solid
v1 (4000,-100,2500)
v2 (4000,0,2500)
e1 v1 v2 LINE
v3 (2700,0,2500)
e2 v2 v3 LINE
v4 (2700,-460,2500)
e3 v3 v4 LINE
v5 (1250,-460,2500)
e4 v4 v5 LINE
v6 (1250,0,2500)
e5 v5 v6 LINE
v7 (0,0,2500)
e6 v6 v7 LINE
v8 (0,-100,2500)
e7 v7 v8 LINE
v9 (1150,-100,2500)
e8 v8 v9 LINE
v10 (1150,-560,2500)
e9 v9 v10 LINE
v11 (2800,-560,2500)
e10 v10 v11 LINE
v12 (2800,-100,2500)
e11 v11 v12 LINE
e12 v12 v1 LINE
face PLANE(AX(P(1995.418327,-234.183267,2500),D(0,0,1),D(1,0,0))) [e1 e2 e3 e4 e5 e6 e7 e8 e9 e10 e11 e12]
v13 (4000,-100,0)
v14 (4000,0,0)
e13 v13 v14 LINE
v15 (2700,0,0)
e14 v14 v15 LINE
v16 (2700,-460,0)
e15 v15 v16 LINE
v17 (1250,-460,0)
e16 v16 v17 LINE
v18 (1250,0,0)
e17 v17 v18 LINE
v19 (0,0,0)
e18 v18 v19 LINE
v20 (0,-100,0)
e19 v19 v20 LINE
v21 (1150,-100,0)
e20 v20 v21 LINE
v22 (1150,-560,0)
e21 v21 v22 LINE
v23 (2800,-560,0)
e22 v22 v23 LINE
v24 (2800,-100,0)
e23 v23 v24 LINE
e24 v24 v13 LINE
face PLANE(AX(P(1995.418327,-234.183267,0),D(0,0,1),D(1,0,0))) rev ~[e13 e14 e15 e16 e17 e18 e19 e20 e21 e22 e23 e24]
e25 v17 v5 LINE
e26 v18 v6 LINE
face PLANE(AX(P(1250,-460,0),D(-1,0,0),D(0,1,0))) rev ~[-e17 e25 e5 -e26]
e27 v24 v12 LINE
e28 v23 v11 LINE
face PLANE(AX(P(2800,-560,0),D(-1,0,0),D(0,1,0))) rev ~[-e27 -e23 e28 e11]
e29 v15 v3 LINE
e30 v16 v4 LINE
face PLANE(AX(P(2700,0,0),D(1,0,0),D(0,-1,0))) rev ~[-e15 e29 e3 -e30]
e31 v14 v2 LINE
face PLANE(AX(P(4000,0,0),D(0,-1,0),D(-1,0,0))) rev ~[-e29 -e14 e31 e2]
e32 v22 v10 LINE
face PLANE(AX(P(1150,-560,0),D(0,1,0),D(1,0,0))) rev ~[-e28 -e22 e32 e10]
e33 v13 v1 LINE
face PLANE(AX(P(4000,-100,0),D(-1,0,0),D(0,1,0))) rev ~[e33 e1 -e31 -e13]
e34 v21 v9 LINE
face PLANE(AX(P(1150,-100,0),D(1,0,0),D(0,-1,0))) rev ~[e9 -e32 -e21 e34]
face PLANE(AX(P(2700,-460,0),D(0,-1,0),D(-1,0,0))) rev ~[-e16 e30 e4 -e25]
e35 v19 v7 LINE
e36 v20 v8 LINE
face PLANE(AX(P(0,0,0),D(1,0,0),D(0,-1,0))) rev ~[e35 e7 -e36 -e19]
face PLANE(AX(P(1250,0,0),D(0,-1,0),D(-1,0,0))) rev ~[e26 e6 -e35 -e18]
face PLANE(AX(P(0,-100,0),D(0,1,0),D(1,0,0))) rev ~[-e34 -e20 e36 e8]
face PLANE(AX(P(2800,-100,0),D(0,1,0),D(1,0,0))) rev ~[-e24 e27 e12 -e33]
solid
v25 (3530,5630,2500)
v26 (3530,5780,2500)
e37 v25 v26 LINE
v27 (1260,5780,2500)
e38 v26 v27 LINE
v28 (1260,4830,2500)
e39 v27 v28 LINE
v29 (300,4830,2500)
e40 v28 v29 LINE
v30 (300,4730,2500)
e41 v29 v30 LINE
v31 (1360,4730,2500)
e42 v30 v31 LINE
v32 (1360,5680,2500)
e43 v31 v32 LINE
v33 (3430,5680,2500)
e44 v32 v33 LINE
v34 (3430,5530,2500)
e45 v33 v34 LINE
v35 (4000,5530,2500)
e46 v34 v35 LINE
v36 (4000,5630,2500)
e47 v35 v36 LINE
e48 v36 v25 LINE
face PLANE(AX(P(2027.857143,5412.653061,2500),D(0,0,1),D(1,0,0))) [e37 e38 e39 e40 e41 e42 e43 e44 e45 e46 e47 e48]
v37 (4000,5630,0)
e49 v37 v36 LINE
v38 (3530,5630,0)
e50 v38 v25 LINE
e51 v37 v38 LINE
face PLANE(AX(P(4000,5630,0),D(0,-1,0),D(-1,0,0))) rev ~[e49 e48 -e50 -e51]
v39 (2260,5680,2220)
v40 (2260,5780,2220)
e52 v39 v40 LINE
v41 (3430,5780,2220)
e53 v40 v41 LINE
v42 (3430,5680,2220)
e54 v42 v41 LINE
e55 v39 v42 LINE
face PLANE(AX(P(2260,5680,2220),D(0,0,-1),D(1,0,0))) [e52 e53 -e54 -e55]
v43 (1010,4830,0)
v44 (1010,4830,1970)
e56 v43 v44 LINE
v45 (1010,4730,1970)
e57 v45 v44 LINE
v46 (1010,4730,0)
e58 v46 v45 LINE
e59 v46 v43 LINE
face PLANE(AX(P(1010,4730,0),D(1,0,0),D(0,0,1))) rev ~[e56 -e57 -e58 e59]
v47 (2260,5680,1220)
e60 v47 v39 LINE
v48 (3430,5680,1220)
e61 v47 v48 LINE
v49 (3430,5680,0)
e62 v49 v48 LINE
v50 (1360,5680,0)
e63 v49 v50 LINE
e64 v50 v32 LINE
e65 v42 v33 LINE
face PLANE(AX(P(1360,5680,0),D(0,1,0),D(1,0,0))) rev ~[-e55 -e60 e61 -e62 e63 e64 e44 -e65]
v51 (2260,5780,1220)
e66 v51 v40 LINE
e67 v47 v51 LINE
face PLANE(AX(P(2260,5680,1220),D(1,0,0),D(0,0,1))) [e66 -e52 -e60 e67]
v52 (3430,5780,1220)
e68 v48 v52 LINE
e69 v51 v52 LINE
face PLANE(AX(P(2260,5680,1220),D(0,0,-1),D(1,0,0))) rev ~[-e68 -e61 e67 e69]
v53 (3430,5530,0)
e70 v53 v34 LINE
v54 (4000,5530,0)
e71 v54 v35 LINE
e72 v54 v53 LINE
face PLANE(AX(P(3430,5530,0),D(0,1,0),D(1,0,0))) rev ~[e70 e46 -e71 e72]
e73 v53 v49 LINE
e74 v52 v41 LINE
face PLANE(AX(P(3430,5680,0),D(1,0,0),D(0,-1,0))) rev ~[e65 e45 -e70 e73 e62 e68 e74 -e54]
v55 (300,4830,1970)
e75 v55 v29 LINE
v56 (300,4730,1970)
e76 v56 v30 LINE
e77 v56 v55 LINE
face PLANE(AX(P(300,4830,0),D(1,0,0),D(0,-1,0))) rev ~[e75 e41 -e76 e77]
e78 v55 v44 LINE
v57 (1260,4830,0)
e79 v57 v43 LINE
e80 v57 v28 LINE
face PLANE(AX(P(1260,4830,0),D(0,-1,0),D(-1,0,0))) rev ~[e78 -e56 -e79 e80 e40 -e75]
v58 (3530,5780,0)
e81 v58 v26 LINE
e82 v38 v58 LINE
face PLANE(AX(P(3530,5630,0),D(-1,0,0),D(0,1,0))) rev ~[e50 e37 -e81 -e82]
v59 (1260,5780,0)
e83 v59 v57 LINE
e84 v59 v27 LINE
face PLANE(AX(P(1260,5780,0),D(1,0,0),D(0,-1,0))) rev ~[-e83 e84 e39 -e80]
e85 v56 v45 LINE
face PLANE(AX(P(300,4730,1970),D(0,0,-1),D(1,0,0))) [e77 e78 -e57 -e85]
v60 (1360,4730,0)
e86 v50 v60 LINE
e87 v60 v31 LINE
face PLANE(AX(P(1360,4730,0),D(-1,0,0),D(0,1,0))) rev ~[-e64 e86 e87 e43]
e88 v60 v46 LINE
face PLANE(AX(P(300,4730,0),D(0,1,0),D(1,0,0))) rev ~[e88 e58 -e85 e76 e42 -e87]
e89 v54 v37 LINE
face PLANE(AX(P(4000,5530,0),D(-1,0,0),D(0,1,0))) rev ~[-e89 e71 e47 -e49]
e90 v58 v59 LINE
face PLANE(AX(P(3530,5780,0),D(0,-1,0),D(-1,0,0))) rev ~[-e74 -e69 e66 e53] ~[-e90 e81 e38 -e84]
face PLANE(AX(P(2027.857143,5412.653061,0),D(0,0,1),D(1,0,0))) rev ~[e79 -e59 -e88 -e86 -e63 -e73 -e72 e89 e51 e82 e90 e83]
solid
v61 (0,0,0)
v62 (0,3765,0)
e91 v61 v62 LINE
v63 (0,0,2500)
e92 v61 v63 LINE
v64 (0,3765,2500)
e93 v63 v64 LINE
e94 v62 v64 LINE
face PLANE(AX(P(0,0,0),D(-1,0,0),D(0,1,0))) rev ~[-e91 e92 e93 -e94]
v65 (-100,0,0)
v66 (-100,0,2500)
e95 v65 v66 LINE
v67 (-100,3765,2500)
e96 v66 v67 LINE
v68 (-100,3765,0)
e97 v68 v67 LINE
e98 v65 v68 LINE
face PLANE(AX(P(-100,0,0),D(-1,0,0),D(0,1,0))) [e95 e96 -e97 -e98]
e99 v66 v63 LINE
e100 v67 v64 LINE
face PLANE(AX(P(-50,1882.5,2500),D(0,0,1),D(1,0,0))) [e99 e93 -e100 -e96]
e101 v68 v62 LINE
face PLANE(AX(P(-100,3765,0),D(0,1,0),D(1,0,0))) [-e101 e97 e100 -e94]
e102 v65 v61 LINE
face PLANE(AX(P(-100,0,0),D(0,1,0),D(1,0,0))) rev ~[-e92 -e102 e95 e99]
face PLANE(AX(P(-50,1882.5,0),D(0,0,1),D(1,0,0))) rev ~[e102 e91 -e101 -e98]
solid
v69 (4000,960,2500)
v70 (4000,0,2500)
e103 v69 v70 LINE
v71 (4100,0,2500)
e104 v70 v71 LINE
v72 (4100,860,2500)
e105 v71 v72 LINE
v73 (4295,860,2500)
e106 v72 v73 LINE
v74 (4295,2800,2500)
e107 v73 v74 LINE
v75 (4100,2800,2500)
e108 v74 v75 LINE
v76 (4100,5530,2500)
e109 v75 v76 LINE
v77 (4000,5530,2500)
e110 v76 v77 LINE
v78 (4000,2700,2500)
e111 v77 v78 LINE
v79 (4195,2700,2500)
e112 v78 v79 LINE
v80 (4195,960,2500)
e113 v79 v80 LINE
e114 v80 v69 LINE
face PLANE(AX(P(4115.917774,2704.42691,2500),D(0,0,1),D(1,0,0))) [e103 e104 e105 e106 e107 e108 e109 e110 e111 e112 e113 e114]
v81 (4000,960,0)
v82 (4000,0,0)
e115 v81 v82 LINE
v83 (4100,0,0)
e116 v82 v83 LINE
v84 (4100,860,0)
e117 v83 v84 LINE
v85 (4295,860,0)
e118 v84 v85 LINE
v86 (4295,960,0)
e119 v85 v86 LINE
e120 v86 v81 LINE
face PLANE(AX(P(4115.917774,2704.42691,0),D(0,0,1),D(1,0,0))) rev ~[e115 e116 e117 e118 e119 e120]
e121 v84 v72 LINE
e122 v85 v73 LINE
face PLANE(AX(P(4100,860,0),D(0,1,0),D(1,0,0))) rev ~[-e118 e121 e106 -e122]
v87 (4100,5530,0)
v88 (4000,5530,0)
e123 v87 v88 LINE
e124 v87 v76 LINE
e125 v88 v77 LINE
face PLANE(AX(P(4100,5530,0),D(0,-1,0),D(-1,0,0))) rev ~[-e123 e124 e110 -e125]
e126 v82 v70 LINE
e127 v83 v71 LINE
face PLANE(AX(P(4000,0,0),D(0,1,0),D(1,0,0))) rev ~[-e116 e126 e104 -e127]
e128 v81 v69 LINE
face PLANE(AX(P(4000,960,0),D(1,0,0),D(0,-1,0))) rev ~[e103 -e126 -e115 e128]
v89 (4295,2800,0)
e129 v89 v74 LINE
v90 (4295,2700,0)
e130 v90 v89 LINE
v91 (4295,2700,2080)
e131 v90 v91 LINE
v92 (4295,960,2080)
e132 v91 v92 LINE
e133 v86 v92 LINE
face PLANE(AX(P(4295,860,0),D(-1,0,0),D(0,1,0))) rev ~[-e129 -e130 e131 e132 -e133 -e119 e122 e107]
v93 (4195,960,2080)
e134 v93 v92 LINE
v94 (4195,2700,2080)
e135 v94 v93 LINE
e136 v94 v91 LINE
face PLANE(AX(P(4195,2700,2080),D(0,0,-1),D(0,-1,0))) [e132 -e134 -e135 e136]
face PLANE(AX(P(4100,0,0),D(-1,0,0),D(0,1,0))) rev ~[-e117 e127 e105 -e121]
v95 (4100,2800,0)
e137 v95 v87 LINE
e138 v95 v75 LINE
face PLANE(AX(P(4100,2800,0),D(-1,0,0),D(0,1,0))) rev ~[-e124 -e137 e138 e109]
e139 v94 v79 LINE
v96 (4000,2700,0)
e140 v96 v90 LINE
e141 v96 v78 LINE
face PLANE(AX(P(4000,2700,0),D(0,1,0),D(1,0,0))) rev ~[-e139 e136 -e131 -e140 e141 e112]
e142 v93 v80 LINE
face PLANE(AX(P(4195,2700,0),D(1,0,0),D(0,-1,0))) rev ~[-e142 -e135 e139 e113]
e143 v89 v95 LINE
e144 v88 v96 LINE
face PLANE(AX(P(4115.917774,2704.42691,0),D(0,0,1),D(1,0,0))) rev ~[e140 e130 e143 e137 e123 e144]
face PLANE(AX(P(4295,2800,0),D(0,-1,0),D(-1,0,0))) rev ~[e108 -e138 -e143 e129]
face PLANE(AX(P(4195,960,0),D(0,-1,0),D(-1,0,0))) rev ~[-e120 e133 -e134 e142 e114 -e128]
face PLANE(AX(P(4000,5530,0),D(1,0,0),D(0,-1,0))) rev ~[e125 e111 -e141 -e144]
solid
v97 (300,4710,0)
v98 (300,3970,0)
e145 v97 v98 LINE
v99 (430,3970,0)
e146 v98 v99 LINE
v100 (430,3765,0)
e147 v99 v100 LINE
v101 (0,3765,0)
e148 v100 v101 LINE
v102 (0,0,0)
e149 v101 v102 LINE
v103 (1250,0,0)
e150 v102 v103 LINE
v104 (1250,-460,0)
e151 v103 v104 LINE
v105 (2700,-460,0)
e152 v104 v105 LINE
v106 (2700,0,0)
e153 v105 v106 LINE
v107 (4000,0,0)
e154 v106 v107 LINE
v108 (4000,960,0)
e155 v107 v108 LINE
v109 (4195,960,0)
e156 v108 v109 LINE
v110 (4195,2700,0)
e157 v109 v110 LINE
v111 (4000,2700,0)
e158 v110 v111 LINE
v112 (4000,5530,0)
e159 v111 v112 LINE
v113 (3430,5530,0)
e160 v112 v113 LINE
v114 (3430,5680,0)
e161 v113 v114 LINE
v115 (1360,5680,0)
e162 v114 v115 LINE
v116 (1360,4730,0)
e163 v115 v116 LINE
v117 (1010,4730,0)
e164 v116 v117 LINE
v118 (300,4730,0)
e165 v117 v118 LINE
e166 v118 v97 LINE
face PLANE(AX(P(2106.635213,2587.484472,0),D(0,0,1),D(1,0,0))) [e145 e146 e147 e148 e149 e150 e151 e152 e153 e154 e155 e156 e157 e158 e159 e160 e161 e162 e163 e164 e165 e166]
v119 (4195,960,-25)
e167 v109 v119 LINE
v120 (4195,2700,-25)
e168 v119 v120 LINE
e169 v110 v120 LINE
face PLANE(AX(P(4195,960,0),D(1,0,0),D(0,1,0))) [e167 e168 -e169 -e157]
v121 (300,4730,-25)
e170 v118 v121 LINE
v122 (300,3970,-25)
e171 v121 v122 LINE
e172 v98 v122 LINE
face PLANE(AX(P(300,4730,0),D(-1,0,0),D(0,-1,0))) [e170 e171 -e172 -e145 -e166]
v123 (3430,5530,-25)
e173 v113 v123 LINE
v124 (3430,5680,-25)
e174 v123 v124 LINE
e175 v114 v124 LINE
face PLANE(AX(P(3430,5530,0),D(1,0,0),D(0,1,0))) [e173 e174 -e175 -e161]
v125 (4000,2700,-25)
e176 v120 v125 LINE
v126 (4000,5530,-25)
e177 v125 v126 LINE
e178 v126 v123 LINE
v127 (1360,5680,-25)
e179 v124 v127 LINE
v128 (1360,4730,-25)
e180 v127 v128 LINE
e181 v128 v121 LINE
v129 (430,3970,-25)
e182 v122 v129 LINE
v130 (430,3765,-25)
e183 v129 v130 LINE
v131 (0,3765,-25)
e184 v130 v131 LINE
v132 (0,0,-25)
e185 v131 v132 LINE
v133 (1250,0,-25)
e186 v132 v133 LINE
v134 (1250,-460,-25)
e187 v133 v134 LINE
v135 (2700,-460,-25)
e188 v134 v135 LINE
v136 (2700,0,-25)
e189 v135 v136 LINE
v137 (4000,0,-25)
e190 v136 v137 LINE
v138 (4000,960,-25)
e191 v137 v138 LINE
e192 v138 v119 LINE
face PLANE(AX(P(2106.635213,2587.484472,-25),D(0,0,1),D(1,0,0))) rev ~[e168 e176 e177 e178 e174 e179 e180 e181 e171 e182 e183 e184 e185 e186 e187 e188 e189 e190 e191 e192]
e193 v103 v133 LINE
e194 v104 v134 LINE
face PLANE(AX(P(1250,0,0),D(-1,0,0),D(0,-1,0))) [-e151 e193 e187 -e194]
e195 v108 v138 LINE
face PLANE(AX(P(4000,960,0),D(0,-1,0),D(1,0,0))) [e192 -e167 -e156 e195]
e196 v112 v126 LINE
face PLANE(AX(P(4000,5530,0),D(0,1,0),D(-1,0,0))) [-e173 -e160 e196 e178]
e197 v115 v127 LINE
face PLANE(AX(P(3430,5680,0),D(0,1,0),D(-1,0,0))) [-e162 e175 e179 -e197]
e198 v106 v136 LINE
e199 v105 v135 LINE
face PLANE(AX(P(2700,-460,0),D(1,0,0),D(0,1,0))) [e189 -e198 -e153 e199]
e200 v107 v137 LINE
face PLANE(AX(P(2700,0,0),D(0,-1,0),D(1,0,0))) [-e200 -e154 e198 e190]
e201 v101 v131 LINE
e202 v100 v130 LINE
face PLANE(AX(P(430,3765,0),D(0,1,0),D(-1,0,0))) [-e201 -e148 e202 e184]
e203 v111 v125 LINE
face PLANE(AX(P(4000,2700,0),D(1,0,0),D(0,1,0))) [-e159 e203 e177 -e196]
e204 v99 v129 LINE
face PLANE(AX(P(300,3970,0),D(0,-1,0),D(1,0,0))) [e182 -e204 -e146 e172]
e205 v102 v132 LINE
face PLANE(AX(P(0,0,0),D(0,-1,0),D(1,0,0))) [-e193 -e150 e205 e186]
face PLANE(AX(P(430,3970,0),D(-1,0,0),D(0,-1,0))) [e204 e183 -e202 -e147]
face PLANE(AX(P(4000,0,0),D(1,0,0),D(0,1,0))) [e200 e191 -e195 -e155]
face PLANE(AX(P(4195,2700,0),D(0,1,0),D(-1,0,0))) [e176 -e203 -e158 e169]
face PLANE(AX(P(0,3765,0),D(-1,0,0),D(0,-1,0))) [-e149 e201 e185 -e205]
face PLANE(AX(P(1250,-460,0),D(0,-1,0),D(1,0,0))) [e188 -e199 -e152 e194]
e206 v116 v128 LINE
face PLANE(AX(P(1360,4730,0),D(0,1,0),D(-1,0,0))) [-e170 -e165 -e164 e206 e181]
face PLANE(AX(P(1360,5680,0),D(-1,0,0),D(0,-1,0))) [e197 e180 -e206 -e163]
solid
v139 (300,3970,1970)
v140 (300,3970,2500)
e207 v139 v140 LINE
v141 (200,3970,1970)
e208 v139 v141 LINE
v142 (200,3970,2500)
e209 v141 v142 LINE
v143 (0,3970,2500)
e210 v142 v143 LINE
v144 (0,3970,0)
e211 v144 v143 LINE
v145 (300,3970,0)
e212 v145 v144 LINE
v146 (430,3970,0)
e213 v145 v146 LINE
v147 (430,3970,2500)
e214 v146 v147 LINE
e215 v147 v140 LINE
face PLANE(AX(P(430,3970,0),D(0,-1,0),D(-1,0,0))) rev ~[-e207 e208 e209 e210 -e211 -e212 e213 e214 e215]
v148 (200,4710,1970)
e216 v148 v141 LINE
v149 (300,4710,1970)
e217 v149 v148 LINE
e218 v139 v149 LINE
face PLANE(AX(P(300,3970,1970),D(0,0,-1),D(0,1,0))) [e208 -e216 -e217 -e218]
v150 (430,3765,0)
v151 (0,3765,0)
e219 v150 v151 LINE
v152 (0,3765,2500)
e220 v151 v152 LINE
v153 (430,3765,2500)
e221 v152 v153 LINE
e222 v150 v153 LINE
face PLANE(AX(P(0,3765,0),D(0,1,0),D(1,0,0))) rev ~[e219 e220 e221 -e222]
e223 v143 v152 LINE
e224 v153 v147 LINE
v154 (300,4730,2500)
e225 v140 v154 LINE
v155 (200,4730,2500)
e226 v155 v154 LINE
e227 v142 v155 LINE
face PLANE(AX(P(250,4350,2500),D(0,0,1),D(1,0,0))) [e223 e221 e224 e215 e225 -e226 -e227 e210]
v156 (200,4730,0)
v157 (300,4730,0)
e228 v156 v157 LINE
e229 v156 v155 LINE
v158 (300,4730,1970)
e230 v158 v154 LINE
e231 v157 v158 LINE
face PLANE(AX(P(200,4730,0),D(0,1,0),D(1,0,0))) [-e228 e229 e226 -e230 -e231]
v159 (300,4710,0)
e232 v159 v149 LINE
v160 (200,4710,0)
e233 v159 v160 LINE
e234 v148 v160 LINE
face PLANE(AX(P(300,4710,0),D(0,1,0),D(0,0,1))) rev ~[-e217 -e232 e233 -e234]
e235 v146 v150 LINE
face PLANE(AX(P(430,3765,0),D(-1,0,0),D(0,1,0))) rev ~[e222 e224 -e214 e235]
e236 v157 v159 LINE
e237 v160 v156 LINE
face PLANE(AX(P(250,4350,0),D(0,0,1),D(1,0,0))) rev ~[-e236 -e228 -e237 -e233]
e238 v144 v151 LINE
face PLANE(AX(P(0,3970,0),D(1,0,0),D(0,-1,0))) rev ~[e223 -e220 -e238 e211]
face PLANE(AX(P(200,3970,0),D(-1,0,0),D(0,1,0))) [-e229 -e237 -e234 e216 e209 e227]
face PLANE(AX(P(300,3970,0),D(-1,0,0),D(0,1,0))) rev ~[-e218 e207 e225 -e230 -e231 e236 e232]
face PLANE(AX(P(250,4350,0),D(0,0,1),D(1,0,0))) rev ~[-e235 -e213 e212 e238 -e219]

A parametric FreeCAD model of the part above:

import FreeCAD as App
import Part
import Sketcher

V = App.Vector

doc = App.newDocument("Part")
params = doc.addObject("Spreadsheet::Sheet", "Params")
for row, (alias, value) in enumerate([
    ("sketch1_width", "1250 mm"),
    ("sketch1_width2", "1450 mm"),
    ("sketch1_width3", "1300 mm"),
    ("sketch1_width4", "195 mm"),
    ("sketch1_width5", "570 mm"),
    ("pad1_length", "25 mm"),
    ("sketch2_width", "100 mm"),
    ("sketch2_height", "3765 mm"),
    ("pad2_length", "2500 mm"),
    ("sketch3_width", "1250 mm"),
    ("sketch3_width2", "1150 mm"),
    ("sketch3_width3", "1650 mm"),
    ("sketch3_width4", "1200 mm"),
    ("sketch3_width5", "1300 mm"),
    ("pad3_length", "2500 mm"),
    ("sketch4_width", "100 mm"),
    ("sketch4_width2", "195 mm"),
    ("sketch4_height", "960 mm"),
    ("sketch4_height2", "860 mm"),
    ("sketch4_height3", "1940 mm"),
    ("pad4_length", "2500 mm"),
    ("sketch5_width", "1740 mm"),
    ("sketch5_height", "2080 mm"),
    ("sketch6_width", "430 mm"),
    ("sketch6_height", "205 mm"),
    ("pad5_length", "2500 mm"),
    ("sketch7_width", "570 mm"),
    ("sketch7_width2", "470 mm"),
    ("sketch7_width3", "2270 mm"),
    ("sketch7_width4", "960 mm"),
    ("sketch7_width5", "1060 mm"),
    ("pad6_length", "2500 mm"),
    ("sketch8_width", "100 mm"),
    ("sketch8_height", "760 mm"),
    ("pad7_length", "2500 mm"),
    ("sketch9_width", "1170 mm"),
    ("sketch9_height", "1000 mm"),
    ("sketch10_width", "740 mm"),
    ("sketch10_height", "1970 mm"),
    ("sketch11_width", "710 mm"),
    ("sketch11_height", "1970 mm"),
], start=1):
    params.set(f"A{row}", alias)
    params.set(f"B{row}", "=" + value)
    params.setAlias(f"B{row}", alias)

body = doc.addObject("PartDesign::Body", "Body")

sketch1 = body.newObject("Sketcher::SketchObject", "Sketch")
sketch1.AttachmentSupport = (doc.getObject("XY_Plane"), [""])
sketch1.MapMode = "FlatFace"
sketch1.addGeometry([
    Part.LineSegment(V(0, 3765, 0), V(0, 0, 0)),
    Part.LineSegment(V(0, 0, 0), V(1250, 0, 0)),
    Part.LineSegment(V(1250, 0, 0), V(1250, -460, 0)),
    Part.LineSegment(V(1250, -460, 0), V(2700, -460, 0)),
    Part.LineSegment(V(2700, -460, 0), V(2700, 0, 0)),
    Part.LineSegment(V(2700, 0, 0), V(4000, 0, 0)),
    Part.LineSegment(V(4000, 0, 0), V(4000, 960, 0)),
    Part.LineSegment(V(4000, 960, 0), V(4195, 960, 0)),
    Part.LineSegment(V(4195, 960, 0), V(4195, 2700, 0)),
    Part.LineSegment(V(4195, 2700, 0), V(4000, 2700, 0)),
    Part.LineSegment(V(4000, 2700, 0), V(4000, 5530, 0)),
    Part.LineSegment(V(4000, 5530, 0), V(3430, 5530, 0)),
    Part.LineSegment(V(3430, 5530, 0), V(3430, 5680, 0)),
    Part.LineSegment(V(3430, 5680, 0), V(1360, 5680, 0)),
    Part.LineSegment(V(1360, 5680, 0), V(1360, 4730, 0)),
    Part.LineSegment(V(1360, 4730, 0), V(300, 4730, 0)),
    Part.LineSegment(V(300, 4730, 0), V(300, 3970, 0)),
    Part.LineSegment(V(300, 3970, 0), V(430, 3970, 0)),
    Part.LineSegment(V(430, 3970, 0), V(430, 3765, 0)),
    Part.LineSegment(V(430, 3765, 0), V(0, 3765, 0)),
], False)
sketch1.addConstraint([
    Sketcher.Constraint("Coincident", 0, 2, 1, 1),
    Sketcher.Constraint("Coincident", 1, 2, 2, 1),
    Sketcher.Constraint("Coincident", 2, 2, 3, 1),
    Sketcher.Constraint("Coincident", 3, 2, 4, 1),
    Sketcher.Constraint("Coincident", 4, 2, 5, 1),
    Sketcher.Constraint("Coincident", 5, 2, 6, 1),
    Sketcher.Constraint("Coincident", 6, 2, 7, 1),
    Sketcher.Constraint("Coincident", 7, 2, 8, 1),
    Sketcher.Constraint("Coincident", 8, 2, 9, 1),
    Sketcher.Constraint("Coincident", 9, 2, 10, 1),
    Sketcher.Constraint("Coincident", 10, 2, 11, 1),
    Sketcher.Constraint("Coincident", 11, 2, 12, 1),
    Sketcher.Constraint("Coincident", 12, 2, 13, 1),
    Sketcher.Constraint("Coincident", 13, 2, 14, 1),
    Sketcher.Constraint("Coincident", 14, 2, 15, 1),
    Sketcher.Constraint("Coincident", 15, 2, 16, 1),
    Sketcher.Constraint("Coincident", 16, 2, 17, 1),
    Sketcher.Constraint("Coincident", 17, 2, 18, 1),
    Sketcher.Constraint("Coincident", 18, 2, 19, 1),
    Sketcher.Constraint("Coincident", 19, 2, 0, 1),
    Sketcher.Constraint("Vertical", 0),
    Sketcher.Constraint("Horizontal", 1),
    Sketcher.Constraint("Vertical", 2),
    Sketcher.Constraint("Horizontal", 3),
    Sketcher.Constraint("Vertical", 4),
    Sketcher.Constraint("Horizontal", 5),
    Sketcher.Constraint("Vertical", 6),
    Sketcher.Constraint("Horizontal", 7),
    Sketcher.Constraint("Vertical", 8),
    Sketcher.Constraint("Horizontal", 9),
    Sketcher.Constraint("Vertical", 10),
    Sketcher.Constraint("Horizontal", 11),
    Sketcher.Constraint("Vertical", 12),
    Sketcher.Constraint("Horizontal", 13),
    Sketcher.Constraint("Vertical", 14),
    Sketcher.Constraint("Horizontal", 15),
    Sketcher.Constraint("Vertical", 16),
    Sketcher.Constraint("Horizontal", 17),
    Sketcher.Constraint("Vertical", 18),
    Sketcher.Constraint("Horizontal", 19),
    Sketcher.Constraint("Coincident", 0, 2, -1, 1),
    Sketcher.Constraint("PointOnObject", 4, 2, -1),
    Sketcher.Constraint("Vertical", 6, 2, 9, 2),
    Sketcher.Constraint("DistanceX", 1, 1, 1, 2, 1250.0),
    Sketcher.Constraint("DistanceX", 3, 1, 3, 2, 1450.0),
    Sketcher.Constraint("DistanceX", 5, 1, 5, 2, 1300.0),
    Sketcher.Constraint("DistanceX", 7, 1, 7, 2, 195.0),
    Sketcher.Constraint("DistanceX", 11, 2, 11, 1, 570.0),
    Sketcher.Constraint("DistanceX", 13, 2, 13, 1, 2070.0),
    Sketcher.Constraint("DistanceX", 15, 2, 15, 1, 1060.0),
    Sketcher.Constraint("DistanceX", 17, 1, 17, 2, 130.0),
    Sketcher.Constraint("DistanceY", 0, 2, 0, 1, 3765.0),
    Sketcher.Constraint("DistanceY", 2, 2, 2, 1, 460.0),
    Sketcher.Constraint("DistanceY", 6, 1, 6, 2, 960.0),
    Sketcher.Constraint("DistanceY", 8, 1, 8, 2, 1740.0),
    Sketcher.Constraint("DistanceY", 10, 1, 10, 2, 2830.0),
    Sketcher.Constraint("DistanceY", 12, 1, 12, 2, 150.0),
    Sketcher.Constraint("DistanceY", 14, 2, 14, 1, 950.0),
    Sketcher.Constraint("DistanceY", 16, 2, 16, 1, 760.0),
])
sketch1.setExpression("Constraints[43]", "Params.sketch1_width")
sketch1.setExpression("Constraints[44]", "Params.sketch1_width2")
sketch1.setExpression("Constraints[45]", "Params.sketch1_width3")
sketch1.setExpression("Constraints[46]", "Params.sketch1_width4")
sketch1.setExpression("Constraints[47]", "Params.sketch1_width5")
pad1 = body.newObject("PartDesign::Pad", "Pad")
pad1.Profile = sketch1
pad1.setExpression("Length", "Params.pad1_length")
pad1.Reversed = True
body2 = doc.addObject("PartDesign::Body", "Body001")

sketch2 = body2.newObject("Sketcher::SketchObject", "Sketch001")
sketch2.AttachmentSupport = (doc.getObject("XY_Plane001"), [""])
sketch2.MapMode = "FlatFace"
sketch2.addGeometry([
    Part.LineSegment(V(-100, 3765, 0), V(-100, 0, 0)),
    Part.LineSegment(V(-100, 0, 0), V(0, 0, 0)),
    Part.LineSegment(V(0, 0, 0), V(0, 3765, 0)),
    Part.LineSegment(V(0, 3765, 0), V(-100, 3765, 0)),
], False)
sketch2.addConstraint([
    Sketcher.Constraint("Coincident", 0, 2, 1, 1),
    Sketcher.Constraint("Coincident", 1, 2, 2, 1),
    Sketcher.Constraint("Coincident", 2, 2, 3, 1),
    Sketcher.Constraint("Coincident", 3, 2, 0, 1),
    Sketcher.Constraint("Vertical", 0),
    Sketcher.Constraint("Horizontal", 1),
    Sketcher.Constraint("Vertical", 2),
    Sketcher.Constraint("Horizontal", 3),
    Sketcher.Constraint("Coincident", 1, 2, -1, 1),
    Sketcher.Constraint("DistanceX", 1, 1, 1, 2, 100.0),
    Sketcher.Constraint("DistanceY", 0, 2, 0, 1, 3765.0),
])
sketch2.setExpression("Constraints[9]", "Params.sketch2_width")
sketch2.setExpression("Constraints[10]", "Params.sketch2_height")
pad2 = body2.newObject("PartDesign::Pad", "Pad001")
pad2.Profile = sketch2
pad2.setExpression("Length", "Params.pad2_length")
body3 = doc.addObject("PartDesign::Body", "Body002")

sketch3 = body3.newObject("Sketcher::SketchObject", "Sketch002")
sketch3.AttachmentSupport = (doc.getObject("XY_Plane002"), [""])
sketch3.MapMode = "FlatFace"
sketch3.addGeometry([
    Part.LineSegment(V(1250, 0, 0), V(0, 0, 0)),
    Part.LineSegment(V(0, 0, 0), V(0, -100, 0)),
    Part.LineSegment(V(0, -100, 0), V(1150, -100, 0)),
    Part.LineSegment(V(1150, -100, 0), V(1150, -560, 0)),
    Part.LineSegment(V(1150, -560, 0), V(2800, -560, 0)),
    Part.LineSegment(V(2800, -560, 0), V(2800, -100, 0)),
    Part.LineSegment(V(2800, -100, 0), V(4000, -100, 0)),
    Part.LineSegment(V(4000, -100, 0), V(4000, 0, 0)),
    Part.LineSegment(V(4000, 0, 0), V(2700, 0, 0)),
    Part.LineSegment(V(2700, 0, 0), V(2700, -460, 0)),
    Part.LineSegment(V(2700, -460, 0), V(1250, -460, 0)),
    Part.LineSegment(V(1250, -460, 0), V(1250, 0, 0)),
], False)
sketch3.addConstraint([
    Sketcher.Constraint("Coincident", 0, 2, 1, 1),
    Sketcher.Constraint("Coincident", 1, 2, 2, 1),
    Sketcher.Constraint("Coincident", 2, 2, 3, 1),
    Sketcher.Constraint("Coincident", 3, 2, 4, 1),
    Sketcher.Constraint("Coincident", 4, 2, 5, 1),
    Sketcher.Constraint("Coincident", 5, 2, 6, 1),
    Sketcher.Constraint("Coincident", 6, 2, 7, 1),
    Sketcher.Constraint("Coincident", 7, 2, 8, 1),
    Sketcher.Constraint("Coincident", 8, 2, 9, 1),
    Sketcher.Constraint("Coincident", 9, 2, 10, 1),
    Sketcher.Constraint("Coincident", 10, 2, 11, 1),
    Sketcher.Constraint("Coincident", 11, 2, 0, 1),
    Sketcher.Constraint("Horizontal", 0),
    Sketcher.Constraint("Vertical", 1),
    Sketcher.Constraint("Horizontal", 2),
    Sketcher.Constraint("Vertical", 3),
    Sketcher.Constraint("Horizontal", 4),
    Sketcher.Constraint("Vertical", 5),
    Sketcher.Constraint("Horizontal", 6),
    Sketcher.Constraint("Vertical", 7),
    Sketcher.Constraint("Horizontal", 8),
    Sketcher.Constraint("Vertical", 9),
    Sketcher.Constraint("Horizontal", 10),
    Sketcher.Constraint("Vertical", 11),
    Sketcher.Constraint("Coincident", 0, 2, -1, 1),
    Sketcher.Constraint("PointOnObject", 7, 2, -1),
    Sketcher.Constraint("Horizontal", 2, 2, 5, 2),
    Sketcher.Constraint("Equal", 5, 9),
    Sketcher.Constraint("DistanceX", 0, 2, 0, 1, 1250.0),
    Sketcher.Constraint("DistanceX", 2, 1, 2, 2, 1150.0),
    Sketcher.Constraint("DistanceX", 4, 1, 4, 2, 1650.0),
    Sketcher.Constraint("DistanceX", 6, 1, 6, 2, 1200.0),
    Sketcher.Constraint("DistanceX", 8, 2, 8, 1, 1300.0),
    Sketcher.Constraint("DistanceY", 1, 2, 1, 1, 100.0),
    Sketcher.Constraint("DistanceY", 3, 2, 3, 1, 460.0),
])
sketch3.setExpression("Constraints[28]", "Params.sketch3_width")
sketch3.setExpression("Constraints[29]", "Params.sketch3_width2")
sketch3.setExpression("Constraints[30]", "Params.sketch3_width3")
sketch3.setExpression("Constraints[31]", "Params.sketch3_width4")
sketch3.setExpression("Constraints[32]", "Params.sketch3_width5")
pad3 = body3.newObject("PartDesign::Pad", "Pad002")
pad3.Profile = sketch3
pad3.setExpression("Length", "Params.pad3_length")
body4 = doc.addObject("PartDesign::Body", "Body003")

sketch4 = body4.newObject("Sketcher::SketchObject", "Sketch003")
sketch4.AttachmentSupport = (doc.getObject("XY_Plane003"), [""])
sketch4.MapMode = "FlatFace"
sketch4.addGeometry([
    Part.LineSegment(V(4000, 960, 0), V(4000, 0, 0)),
    Part.LineSegment(V(4000, 0, 0), V(4100, 0, 0)),
    Part.LineSegment(V(4100, 0, 0), V(4100, 860, 0)),
    Part.LineSegment(V(4100, 860, 0), V(4295, 860, 0)),
    Part.LineSegment(V(4295, 860, 0), V(4295, 2800, 0)),
    Part.LineSegment(V(4295, 2800, 0), V(4100, 2800, 0)),
    Part.LineSegment(V(4100, 2800, 0), V(4100, 5530, 0)),
    Part.LineSegment(V(4100, 5530, 0), V(4000, 5530, 0)),
    Part.LineSegment(V(4000, 5530, 0), V(4000, 2700, 0)),
    Part.LineSegment(V(4000, 2700, 0), V(4195, 2700, 0)),
    Part.LineSegment(V(4195, 2700, 0), V(4195, 960, 0)),
    Part.LineSegment(V(4195, 960, 0), V(4000, 960, 0)),
], False)
sketch4.addConstraint([
    Sketcher.Constraint("Coincident", 0, 2, 1, 1),
    Sketcher.Constraint("Coincident", 1, 2, 2, 1),
    Sketcher.Constraint("Coincident", 2, 2, 3, 1),
    Sketcher.Constraint("Coincident", 3, 2, 4, 1),
    Sketcher.Constraint("Coincident", 4, 2, 5, 1),
    Sketcher.Constraint("Coincident", 5, 2, 6, 1),
    Sketcher.Constraint("Coincident", 6, 2, 7, 1),
    Sketcher.Constraint("Coincident", 7, 2, 8, 1),
    Sketcher.Constraint("Coincident", 8, 2, 9, 1),
    Sketcher.Constraint("Coincident", 9, 2, 10, 1),
    Sketcher.Constraint("Coincident", 10, 2, 11, 1),
    Sketcher.Constraint("Coincident", 11, 2, 0, 1),
    Sketcher.Constraint("Vertical", 0),
    Sketcher.Constraint("Horizontal", 1),
    Sketcher.Constraint("Vertical", 2),
    Sketcher.Constraint("Horizontal", 3),
    Sketcher.Constraint("Vertical", 4),
    Sketcher.Constraint("Horizontal", 5),
    Sketcher.Constraint("Vertical", 6),
    Sketcher.Constraint("Horizontal", 7),
    Sketcher.Constraint("Vertical", 8),
    Sketcher.Constraint("Horizontal", 9),
    Sketcher.Constraint("Vertical", 10),
    Sketcher.Constraint("Horizontal", 11),
    Sketcher.Constraint("PointOnObject", 0, 2, -1),
    Sketcher.Constraint("Vertical", 2, 2, 5, 2),
    Sketcher.Constraint("Vertical", 0, 2, 7, 2),
    Sketcher.Constraint("Equal", 5, 9),
    Sketcher.Constraint("DistanceX", 1, 1, 1, 2, 100.0),
    Sketcher.Constraint("DistanceX", 3, 1, 3, 2, 195.0),
    Sketcher.Constraint("DistanceY", 0, 2, 0, 1, 960.0),
    Sketcher.Constraint("DistanceY", 2, 1, 2, 2, 860.0),
    Sketcher.Constraint("DistanceY", 4, 1, 4, 2, 1940.0),
    Sketcher.Constraint("DistanceY", 6, 1, 6, 2, 2730.0),
    Sketcher.Constraint("DistanceY", 8, 2, 8, 1, 2830.0),
    Sketcher.Constraint("DistanceX", -1, 1, 0, 2, 4000.0),
])
sketch4.setExpression("Constraints[28]", "Params.sketch4_width")
sketch4.setExpression("Constraints[29]", "Params.sketch4_width2")
sketch4.setExpression("Constraints[30]", "Params.sketch4_height")
sketch4.setExpression("Constraints[31]", "Params.sketch4_height2")
sketch4.setExpression("Constraints[32]", "Params.sketch4_height3")
pad4 = body4.newObject("PartDesign::Pad", "Pad003")
pad4.Profile = sketch4
pad4.setExpression("Length", "Params.pad4_length")

sketch5 = body4.newObject("Sketcher::SketchObject", "Sketch004")
sketch5.AttachmentSupport = (doc.getObject("YZ_Plane003"), [""])
sketch5.MapMode = "FlatFace"
sketch5.AttachmentOffset = App.Placement(V(0, 0, 4195), App.Rotation())
sketch5.addGeometry([
    Part.LineSegment(V(2700, 2080, 0), V(2700, 0, 0)),
    Part.LineSegment(V(2700, 0, 0), V(960, 0, 0)),
    Part.LineSegment(V(960, 0, 0), V(960, 2080, 0)),
    Part.LineSegment(V(960, 2080, 0), V(2700, 2080, 0)),
], False)
sketch5.addConstraint([
    Sketcher.Constraint("Coincident", 0, 2, 1, 1),
    Sketcher.Constraint("Coincident", 1, 2, 2, 1),
    Sketcher.Constraint("Coincident", 2, 2, 3, 1),
    Sketcher.Constraint("Coincident", 3, 2, 0, 1),
    Sketcher.Constraint("Vertical", 0),
    Sketcher.Constraint("Horizontal", 1),
    Sketcher.Constraint("Vertical", 2),
    Sketcher.Constraint("Horizontal", 3),
    Sketcher.Constraint("PointOnObject", 0, 2, -1),
    Sketcher.Constraint("DistanceX", 1, 2, 1, 1, 1740.0),
    Sketcher.Constraint("DistanceY", 0, 2, 0, 1, 2080.0),
    Sketcher.Constraint("DistanceX", -1, 1, 0, 2, 2700.0),
])
sketch5.setExpression("Constraints[9]", "Params.sketch5_width")
sketch5.setExpression("Constraints[10]", "Params.sketch5_height")
pocket1 = body4.newObject("PartDesign::Pocket", "Pocket")
pocket1.Profile = sketch5
pocket1.Type = "ThroughAll"
pocket1.Reversed = True
body5 = doc.addObject("PartDesign::Body", "Body004")

sketch6 = body5.newObject("Sketcher::SketchObject", "Sketch005")
sketch6.AttachmentSupport = (doc.getObject("XY_Plane004"), [""])
sketch6.MapMode = "FlatFace"
sketch6.addGeometry([
    Part.LineSegment(V(0, 3765, 0), V(430, 3765, 0)),
    Part.LineSegment(V(430, 3765, 0), V(430, 3970, 0)),
    Part.LineSegment(V(430, 3970, 0), V(0, 3970, 0)),
    Part.LineSegment(V(0, 3970, 0), V(0, 3765, 0)),
], False)
sketch6.addConstraint([
    Sketcher.Constraint("Coincident", 0, 2, 1, 1),
    Sketcher.Constraint("Coincident", 1, 2, 2, 1),
    Sketcher.Constraint("Coincident", 2, 2, 3, 1),
    Sketcher.Constraint("Coincident", 3, 2, 0, 1),
    Sketcher.Constraint("Horizontal", 0),
    Sketcher.Constraint("Vertical", 1),
    Sketcher.Constraint("Horizontal", 2),
    Sketcher.Constraint("Vertical", 3),
    Sketcher.Constraint("PointOnObject", 2, 2, -2),
    Sketcher.Constraint("DistanceX", 0, 1, 0, 2, 430.0),
    Sketcher.Constraint("DistanceY", 1, 1, 1, 2, 205.0),
    Sketcher.Constraint("DistanceY", -1, 1, 0, 2, 3765.0),
])
sketch6.setExpression("Constraints[9]", "Params.sketch6_width")
sketch6.setExpression("Constraints[10]", "Params.sketch6_height")
pad5 = body5.newObject("PartDesign::Pad", "Pad004")
pad5.Profile = sketch6
pad5.setExpression("Length", "Params.pad5_length")
body6 = doc.addObject("PartDesign::Body", "Body005")

sketch7 = body6.newObject("Sketcher::SketchObject", "Sketch006")
sketch7.AttachmentSupport = (doc.getObject("XY_Plane005"), [""])
sketch7.MapMode = "FlatFace"
sketch7.addGeometry([
    Part.LineSegment(V(3430, 5530, 0), V(4000, 5530, 0)),
    Part.LineSegment(V(4000, 5530, 0), V(4000, 5630, 0)),
    Part.LineSegment(V(4000, 5630, 0), V(3530, 5630, 0)),
    Part.LineSegment(V(3530, 5630, 0), V(3530, 5780, 0)),
    Part.LineSegment(V(3530, 5780, 0), V(1260, 5780, 0)),
    Part.LineSegment(V(1260, 5780, 0), V(1260, 4830, 0)),
    Part.LineSegment(V(1260, 4830, 0), V(300, 4830, 0)),
    Part.LineSegment(V(300, 4830, 0), V(300, 4730, 0)),
    Part.LineSegment(V(300, 4730, 0), V(1360, 4730, 0)),
    Part.LineSegment(V(1360, 4730, 0), V(1360, 5680, 0)),
    Part.LineSegment(V(1360, 5680, 0), V(3430, 5680, 0)),
    Part.LineSegment(V(3430, 5680, 0), V(3430, 5530, 0)),
], False)
sketch7.addConstraint([
    Sketcher.Constraint("Coincident", 0, 2, 1, 1),
    Sketcher.Constraint("Coincident", 1, 2, 2, 1),
    Sketcher.Constraint("Coincident", 2, 2, 3, 1),
    Sketcher.Constraint("Coincident", 3, 2, 4, 1),
    Sketcher.Constraint("Coincident", 4, 2, 5, 1),
    Sketcher.Constraint("Coincident", 5, 2, 6, 1),
    Sketcher.Constraint("Coincident", 6, 2, 7, 1),
    Sketcher.Constraint("Coincident", 7, 2, 8, 1),
    Sketcher.Constraint("Coincident", 8, 2, 9, 1),
    Sketcher.Constraint("Coincident", 9, 2, 10, 1),
    Sketcher.Constraint("Coincident", 10, 2, 11, 1),
    Sketcher.Constraint("Coincident", 11, 2, 0, 1),
    Sketcher.Constraint("Horizontal", 0),
    Sketcher.Constraint("Vertical", 1),
    Sketcher.Constraint("Horizontal", 2),
    Sketcher.Constraint("Vertical", 3),
    Sketcher.Constraint("Horizontal", 4),
    Sketcher.Constraint("Vertical", 5),
    Sketcher.Constraint("Horizontal", 6),
    Sketcher.Constraint("Vertical", 7),
    Sketcher.Constraint("Horizontal", 8),
    Sketcher.Constraint("Vertical", 9),
    Sketcher.Constraint("Horizontal", 10),
    Sketcher.Constraint("Vertical", 11),
    Sketcher.Constraint("Equal", 1, 7),
    Sketcher.Constraint("Equal", 5, 9),
    Sketcher.Constraint("DistanceX", 0, 1, 0, 2, 570.0),
    Sketcher.Constraint("DistanceX", 2, 2, 2, 1, 470.0),
    Sketcher.Constraint("DistanceX", 4, 2, 4, 1, 2270.0),
    Sketcher.Constraint("DistanceX", 6, 2, 6, 1, 960.0),
    Sketcher.Constraint("DistanceX", 8, 1, 8, 2, 1060.0),
    Sketcher.Constraint("DistanceY", 1, 1, 1, 2, 100.0),
    Sketcher.Constraint("DistanceY", 3, 1, 3, 2, 150.0),
    Sketcher.Constraint("DistanceY", 5, 2, 5, 1, 950.0),
    Sketcher.Constraint("DistanceX", -1, 1, 0, 2, 4000.0),
    Sketcher.Constraint("DistanceY", -1, 1, 0, 2, 5530.0),
])
sketch7.setExpression("Constraints[26]", "Params.sketch7_width")
sketch7.setExpression("Constraints[27]", "Params.sketch7_width2")
sketch7.setExpression("Constraints[28]", "Params.sketch7_width3")
sketch7.setExpression("Constraints[29]", "Params.sketch7_width4")
sketch7.setExpression("Constraints[30]", "Params.sketch7_width5")
pad6 = body6.newObject("PartDesign::Pad", "Pad005")
pad6.Profile = sketch7
pad6.setExpression("Length", "Params.pad6_length")
body.AllowCompound = True
doc.recompute()

boolean = body.newObject("PartDesign::Boolean", "Boolean")
boolean.Type = "Fuse"
boolean.addObjects([body5])
doc.recompute()

boolean2 = body.newObject("PartDesign::Boolean", "Boolean001")
boolean2.Type = "Fuse"
boolean2.addObjects([body6])

sketch8 = body.newObject("Sketcher::SketchObject", "Sketch007")
sketch8.AttachmentSupport = (doc.getObject("XY_Plane"), [""])
sketch8.MapMode = "FlatFace"
sketch8.addGeometry([
    Part.LineSegment(V(200, 4730, 0), V(200, 3970, 0)),
    Part.LineSegment(V(200, 3970, 0), V(300, 3970, 0)),
    Part.LineSegment(V(300, 3970, 0), V(300, 4730, 0)),
    Part.LineSegment(V(300, 4730, 0), V(200, 4730, 0)),
], False)
sketch8.addConstraint([
    Sketcher.Constraint("Coincident", 0, 2, 1, 1),
    Sketcher.Constraint("Coincident", 1, 2, 2, 1),
    Sketcher.Constraint("Coincident", 2, 2, 3, 1),
    Sketcher.Constraint("Coincident", 3, 2, 0, 1),
    Sketcher.Constraint("Vertical", 0),
    Sketcher.Constraint("Horizontal", 1),
    Sketcher.Constraint("Vertical", 2),
    Sketcher.Constraint("Horizontal", 3),
    Sketcher.Constraint("DistanceX", 1, 1, 1, 2, 100.0),
    Sketcher.Constraint("DistanceY", 0, 2, 0, 1, 760.0),
    Sketcher.Constraint("DistanceX", -1, 1, 0, 2, 200.0),
    Sketcher.Constraint("DistanceY", -1, 1, 0, 2, 3970.0),
])
sketch8.setExpression("Constraints[8]", "Params.sketch8_width")
sketch8.setExpression("Constraints[9]", "Params.sketch8_height")
pad7 = body.newObject("PartDesign::Pad", "Pad006")
pad7.Profile = sketch8
pad7.setExpression("Length", "Params.pad7_length")

sketch9 = body.newObject("Sketcher::SketchObject", "Sketch008")
sketch9.AttachmentSupport = (doc.getObject("XZ_Plane"), [""])
sketch9.MapMode = "FlatFace"
sketch9.AttachmentOffset = App.Placement(V(0, 0, -5680), App.Rotation())
sketch9.addGeometry([
    Part.LineSegment(V(2260, 2220, 0), V(2260, 1220, 0)),
    Part.LineSegment(V(2260, 1220, 0), V(3430, 1220, 0)),
    Part.LineSegment(V(3430, 1220, 0), V(3430, 2220, 0)),
    Part.LineSegment(V(3430, 2220, 0), V(2260, 2220, 0)),
], False)
sketch9.addConstraint([
    Sketcher.Constraint("Coincident", 0, 2, 1, 1),
    Sketcher.Constraint("Coincident", 1, 2, 2, 1),
    Sketcher.Constraint("Coincident", 2, 2, 3, 1),
    Sketcher.Constraint("Coincident", 3, 2, 0, 1),
    Sketcher.Constraint("Vertical", 0),
    Sketcher.Constraint("Horizontal", 1),
    Sketcher.Constraint("Vertical", 2),
    Sketcher.Constraint("Horizontal", 3),
    Sketcher.Constraint("DistanceX", 1, 1, 1, 2, 1170.0),
    Sketcher.Constraint("DistanceY", 0, 2, 0, 1, 1000.0),
    Sketcher.Constraint("DistanceX", -1, 1, 0, 2, 2260.0),
    Sketcher.Constraint("DistanceY", -1, 1, 0, 2, 1220.0),
])
sketch9.setExpression("Constraints[8]", "Params.sketch9_width")
sketch9.setExpression("Constraints[9]", "Params.sketch9_height")
pocket2 = body.newObject("PartDesign::Pocket", "Pocket001")
pocket2.Profile = sketch9
pocket2.Type = "ThroughAll"

sketch10 = body.newObject("Sketcher::SketchObject", "Sketch009")
sketch10.AttachmentSupport = (doc.getObject("YZ_Plane"), [""])
sketch10.MapMode = "FlatFace"
sketch10.AttachmentOffset = App.Placement(V(0, 0, 300), App.Rotation())
sketch10.addGeometry([
    Part.LineSegment(V(3970, 1970, 0), V(3970, 0, 0)),
    Part.LineSegment(V(3970, 0, 0), V(4710, 0, 0)),
    Part.LineSegment(V(4710, 0, 0), V(4710, 1970, 0)),
    Part.LineSegment(V(4710, 1970, 0), V(3970, 1970, 0)),
], False)
sketch10.addConstraint([
    Sketcher.Constraint("Coincident", 0, 2, 1, 1),
    Sketcher.Constraint("Coincident", 1, 2, 2, 1),
    Sketcher.Constraint("Coincident", 2, 2, 3, 1),
    Sketcher.Constraint("Coincident", 3, 2, 0, 1),
    Sketcher.Constraint("Vertical", 0),
    Sketcher.Constraint("Horizontal", 1),
    Sketcher.Constraint("Vertical", 2),
    Sketcher.Constraint("Horizontal", 3),
    Sketcher.Constraint("PointOnObject", 0, 2, -1),
    Sketcher.Constraint("DistanceX", 1, 1, 1, 2, 740.0),
    Sketcher.Constraint("DistanceY", 0, 2, 0, 1, 1970.0),
    Sketcher.Constraint("DistanceX", -1, 1, 0, 2, 3970.0),
])
sketch10.setExpression("Constraints[9]", "Params.sketch10_width")
sketch10.setExpression("Constraints[10]", "Params.sketch10_height")
pocket3 = body.newObject("PartDesign::Pocket", "Pocket002")
pocket3.Profile = sketch10
pocket3.Type = "ThroughAll"

sketch11 = body.newObject("Sketcher::SketchObject", "Sketch010")
sketch11.AttachmentSupport = (doc.getObject("XZ_Plane"), [""])
sketch11.MapMode = "FlatFace"
sketch11.AttachmentOffset = App.Placement(V(0, 0, -4730), App.Rotation())
sketch11.addGeometry([
    Part.LineSegment(V(300, 1970, 0), V(300, 0, 0)),
    Part.LineSegment(V(300, 0, 0), V(1010, 0, 0)),
    Part.LineSegment(V(1010, 0, 0), V(1010, 1970, 0)),
    Part.LineSegment(V(1010, 1970, 0), V(300, 1970, 0)),
], False)
sketch11.addConstraint([
    Sketcher.Constraint("Coincident", 0, 2, 1, 1),
    Sketcher.Constraint("Coincident", 1, 2, 2, 1),
    Sketcher.Constraint("Coincident", 2, 2, 3, 1),
    Sketcher.Constraint("Coincident", 3, 2, 0, 1),
    Sketcher.Constraint("Vertical", 0),
    Sketcher.Constraint("Horizontal", 1),
    Sketcher.Constraint("Vertical", 2),
    Sketcher.Constraint("Horizontal", 3),
    Sketcher.Constraint("PointOnObject", 0, 2, -1),
    Sketcher.Constraint("DistanceX", 1, 1, 1, 2, 710.0),
    Sketcher.Constraint("DistanceY", 0, 2, 0, 1, 1970.0),
    Sketcher.Constraint("DistanceX", -1, 1, 0, 2, 300.0),
])
sketch11.setExpression("Constraints[9]", "Params.sketch11_width")
sketch11.setExpression("Constraints[10]", "Params.sketch11_height")
pocket4 = body.newObject("PartDesign::Pocket", "Pocket003")
pocket4.Profile = sketch11
pocket4.Type = "ThroughAll"

doc.recompute()
